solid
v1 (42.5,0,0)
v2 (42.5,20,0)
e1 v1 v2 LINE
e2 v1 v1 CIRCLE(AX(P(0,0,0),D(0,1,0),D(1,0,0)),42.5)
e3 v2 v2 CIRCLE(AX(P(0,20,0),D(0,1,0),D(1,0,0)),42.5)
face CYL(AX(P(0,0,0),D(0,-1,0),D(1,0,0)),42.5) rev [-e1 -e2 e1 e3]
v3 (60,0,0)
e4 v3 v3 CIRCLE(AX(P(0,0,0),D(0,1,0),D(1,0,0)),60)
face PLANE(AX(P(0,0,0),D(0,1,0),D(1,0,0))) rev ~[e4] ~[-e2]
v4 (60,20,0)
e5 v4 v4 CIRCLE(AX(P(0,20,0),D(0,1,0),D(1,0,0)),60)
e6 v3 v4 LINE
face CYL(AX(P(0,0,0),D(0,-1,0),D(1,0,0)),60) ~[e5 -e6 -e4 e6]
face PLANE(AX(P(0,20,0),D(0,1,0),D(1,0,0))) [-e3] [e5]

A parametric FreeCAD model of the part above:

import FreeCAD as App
import Part
import Sketcher

V = App.Vector
Q = App.Units.Quantity

doc = App.newDocument("Part")
body = doc.addObject("PartDesign::Body", "Body")

sketch1 = body.newObject("Sketcher::SketchObject", "Sketch")
sketch1.AttachmentSupport = (doc.getObject("XZ_Plane"), [""])
sketch1.MapMode = "FlatFace"
sketch1.addGeometry([
    Part.Circle(V(0, 0, 0), V(0, 0, 1), 60),
    Part.Circle(V(0, 0, 0), V(0, 0, 1), 42.5),
], False)
sketch1.addConstraint([
    Sketcher.Constraint("Coincident", 0, 3, -1, 1),
    Sketcher.Constraint("Coincident", 1, 3, -1, 1),
    Sketcher.Constraint("Diameter", 0, Q("120 mm")),
    Sketcher.Constraint("Diameter", 1, Q("85 mm")),
])
pad1 = body.newObject("PartDesign::Pad", "Pad")
pad1.Profile = sketch1
pad1.Length = 20
pad1.Reversed = True

doc.recompute()
